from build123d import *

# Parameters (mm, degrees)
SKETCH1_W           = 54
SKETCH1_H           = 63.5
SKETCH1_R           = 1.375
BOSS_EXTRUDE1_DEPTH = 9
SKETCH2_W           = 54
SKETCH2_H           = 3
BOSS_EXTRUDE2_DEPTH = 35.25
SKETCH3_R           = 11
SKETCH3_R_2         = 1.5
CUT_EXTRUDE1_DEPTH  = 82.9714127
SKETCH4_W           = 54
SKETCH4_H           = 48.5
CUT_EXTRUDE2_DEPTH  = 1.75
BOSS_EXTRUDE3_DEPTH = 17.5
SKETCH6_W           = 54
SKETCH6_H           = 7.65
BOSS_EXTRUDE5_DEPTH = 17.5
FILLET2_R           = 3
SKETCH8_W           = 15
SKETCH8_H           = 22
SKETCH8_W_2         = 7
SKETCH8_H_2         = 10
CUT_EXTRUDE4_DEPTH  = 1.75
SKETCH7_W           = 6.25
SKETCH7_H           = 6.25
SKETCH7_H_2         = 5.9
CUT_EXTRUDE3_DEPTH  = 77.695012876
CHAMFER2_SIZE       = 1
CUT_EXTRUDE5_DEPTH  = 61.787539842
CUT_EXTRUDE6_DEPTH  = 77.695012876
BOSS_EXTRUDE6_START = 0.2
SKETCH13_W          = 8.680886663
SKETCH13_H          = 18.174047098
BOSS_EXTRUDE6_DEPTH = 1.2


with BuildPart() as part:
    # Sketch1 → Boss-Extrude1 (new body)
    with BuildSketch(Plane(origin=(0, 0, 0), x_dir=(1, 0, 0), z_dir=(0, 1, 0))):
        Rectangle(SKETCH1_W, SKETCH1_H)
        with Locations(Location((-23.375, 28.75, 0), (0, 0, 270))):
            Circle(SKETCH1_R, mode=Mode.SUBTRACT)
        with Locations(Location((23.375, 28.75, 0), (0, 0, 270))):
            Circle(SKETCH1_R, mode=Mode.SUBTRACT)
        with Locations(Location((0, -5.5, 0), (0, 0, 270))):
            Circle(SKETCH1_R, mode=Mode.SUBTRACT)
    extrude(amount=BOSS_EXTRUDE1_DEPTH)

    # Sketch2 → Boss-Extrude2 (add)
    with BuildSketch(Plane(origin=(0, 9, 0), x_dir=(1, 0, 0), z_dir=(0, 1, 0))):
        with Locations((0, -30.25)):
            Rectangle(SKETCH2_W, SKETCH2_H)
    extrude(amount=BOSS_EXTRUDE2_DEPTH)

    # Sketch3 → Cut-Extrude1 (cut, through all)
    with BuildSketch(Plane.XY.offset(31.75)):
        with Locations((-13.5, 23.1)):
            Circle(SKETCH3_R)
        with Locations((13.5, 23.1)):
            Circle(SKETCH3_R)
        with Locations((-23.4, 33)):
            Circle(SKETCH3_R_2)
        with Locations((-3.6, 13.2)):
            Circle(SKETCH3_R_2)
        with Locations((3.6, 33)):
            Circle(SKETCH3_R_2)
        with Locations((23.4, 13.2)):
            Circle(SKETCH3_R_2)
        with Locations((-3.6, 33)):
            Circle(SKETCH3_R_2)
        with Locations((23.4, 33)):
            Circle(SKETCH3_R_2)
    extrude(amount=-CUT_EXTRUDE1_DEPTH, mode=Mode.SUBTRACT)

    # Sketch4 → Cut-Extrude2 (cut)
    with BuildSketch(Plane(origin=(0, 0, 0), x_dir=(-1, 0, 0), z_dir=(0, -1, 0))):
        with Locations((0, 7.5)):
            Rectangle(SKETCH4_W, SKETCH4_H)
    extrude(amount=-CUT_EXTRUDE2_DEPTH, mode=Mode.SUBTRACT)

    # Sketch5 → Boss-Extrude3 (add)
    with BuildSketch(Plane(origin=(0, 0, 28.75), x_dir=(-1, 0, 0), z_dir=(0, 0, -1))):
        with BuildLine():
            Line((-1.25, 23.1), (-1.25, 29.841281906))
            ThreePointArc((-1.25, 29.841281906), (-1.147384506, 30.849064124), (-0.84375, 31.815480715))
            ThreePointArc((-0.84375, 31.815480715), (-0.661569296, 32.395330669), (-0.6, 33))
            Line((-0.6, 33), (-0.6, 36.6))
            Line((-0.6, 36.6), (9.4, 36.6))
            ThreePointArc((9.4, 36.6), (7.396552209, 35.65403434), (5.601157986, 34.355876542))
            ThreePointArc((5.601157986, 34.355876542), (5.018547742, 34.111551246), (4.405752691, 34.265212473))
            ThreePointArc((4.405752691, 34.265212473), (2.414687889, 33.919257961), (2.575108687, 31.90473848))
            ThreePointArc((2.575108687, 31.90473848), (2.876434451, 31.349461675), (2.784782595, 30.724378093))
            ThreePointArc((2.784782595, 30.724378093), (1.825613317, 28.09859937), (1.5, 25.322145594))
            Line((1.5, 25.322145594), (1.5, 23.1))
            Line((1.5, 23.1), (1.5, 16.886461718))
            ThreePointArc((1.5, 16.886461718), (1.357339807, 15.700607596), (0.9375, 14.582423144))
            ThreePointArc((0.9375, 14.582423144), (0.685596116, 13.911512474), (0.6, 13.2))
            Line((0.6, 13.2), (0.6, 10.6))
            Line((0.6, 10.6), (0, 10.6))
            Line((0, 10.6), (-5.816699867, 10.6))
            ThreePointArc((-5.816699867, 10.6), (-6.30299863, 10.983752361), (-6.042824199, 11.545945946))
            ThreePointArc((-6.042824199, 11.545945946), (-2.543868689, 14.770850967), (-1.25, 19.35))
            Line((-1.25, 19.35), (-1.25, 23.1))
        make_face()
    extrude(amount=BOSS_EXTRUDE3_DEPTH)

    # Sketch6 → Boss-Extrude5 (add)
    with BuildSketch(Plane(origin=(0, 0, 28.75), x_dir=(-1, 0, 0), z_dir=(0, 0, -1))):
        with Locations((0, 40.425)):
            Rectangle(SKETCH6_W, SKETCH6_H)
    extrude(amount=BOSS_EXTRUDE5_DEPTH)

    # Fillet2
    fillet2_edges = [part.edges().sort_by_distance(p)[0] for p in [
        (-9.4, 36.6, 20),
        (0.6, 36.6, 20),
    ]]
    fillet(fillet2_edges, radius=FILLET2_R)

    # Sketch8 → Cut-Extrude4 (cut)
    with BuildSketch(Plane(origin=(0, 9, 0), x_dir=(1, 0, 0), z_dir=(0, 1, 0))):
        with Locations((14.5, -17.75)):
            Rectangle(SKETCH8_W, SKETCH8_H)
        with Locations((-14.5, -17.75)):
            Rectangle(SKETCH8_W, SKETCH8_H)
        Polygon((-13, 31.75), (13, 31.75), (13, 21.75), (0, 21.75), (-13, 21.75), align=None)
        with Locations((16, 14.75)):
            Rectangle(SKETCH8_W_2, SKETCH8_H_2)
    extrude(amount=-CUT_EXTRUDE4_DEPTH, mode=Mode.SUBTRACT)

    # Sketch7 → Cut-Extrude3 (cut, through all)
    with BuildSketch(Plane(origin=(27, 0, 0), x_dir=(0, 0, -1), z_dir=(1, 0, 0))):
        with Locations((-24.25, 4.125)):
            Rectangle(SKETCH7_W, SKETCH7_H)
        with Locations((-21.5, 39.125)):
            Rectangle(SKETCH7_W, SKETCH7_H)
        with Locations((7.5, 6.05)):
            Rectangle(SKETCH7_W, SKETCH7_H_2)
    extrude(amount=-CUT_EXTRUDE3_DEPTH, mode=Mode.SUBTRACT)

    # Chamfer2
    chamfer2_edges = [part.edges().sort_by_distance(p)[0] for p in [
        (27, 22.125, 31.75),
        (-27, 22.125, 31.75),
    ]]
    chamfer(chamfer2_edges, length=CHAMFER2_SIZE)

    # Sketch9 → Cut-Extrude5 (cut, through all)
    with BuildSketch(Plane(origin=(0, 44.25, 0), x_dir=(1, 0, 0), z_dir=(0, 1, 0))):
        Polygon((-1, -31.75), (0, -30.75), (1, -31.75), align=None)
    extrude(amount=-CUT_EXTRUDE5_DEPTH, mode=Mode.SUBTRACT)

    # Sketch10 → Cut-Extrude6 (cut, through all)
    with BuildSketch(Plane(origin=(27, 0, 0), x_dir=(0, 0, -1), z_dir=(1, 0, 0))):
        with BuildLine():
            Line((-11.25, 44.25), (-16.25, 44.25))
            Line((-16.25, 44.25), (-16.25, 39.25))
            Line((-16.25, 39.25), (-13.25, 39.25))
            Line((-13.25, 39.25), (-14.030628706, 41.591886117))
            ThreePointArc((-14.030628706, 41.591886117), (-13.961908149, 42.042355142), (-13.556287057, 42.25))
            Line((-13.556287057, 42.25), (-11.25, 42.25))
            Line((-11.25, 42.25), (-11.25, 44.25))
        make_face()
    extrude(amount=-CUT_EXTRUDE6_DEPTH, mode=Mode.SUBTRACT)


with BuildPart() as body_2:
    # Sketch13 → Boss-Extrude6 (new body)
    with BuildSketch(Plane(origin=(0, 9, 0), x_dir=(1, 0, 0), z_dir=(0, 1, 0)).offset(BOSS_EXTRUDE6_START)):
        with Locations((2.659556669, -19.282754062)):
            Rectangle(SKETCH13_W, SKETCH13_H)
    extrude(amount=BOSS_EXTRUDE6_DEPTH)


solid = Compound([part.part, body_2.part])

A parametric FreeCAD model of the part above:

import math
import FreeCAD as App
import Part
import Sketcher
from FreeCAD import Vector


def edges_at(feature, points):
    """Names of the edges that pass closest to the given points."""
    edges = feature.Shape.Edges
    near = lambda p: min(range(len(edges)), key=lambda i: edges[i].distToShape(Part.Vertex(*p))[0])
    return sorted({f"Edge{near(p) + 1}" for p in points})

doc = App.newDocument("Part")
body = doc.addObject("PartDesign::Body", "Body")

sketch1 = doc.addObject("Sketcher::SketchObject", "Sketch")
body.addObject(sketch1)
sketch1.AttachmentSupport = (doc.XZ_Plane, [""])
sketch1.MapMode = "FlatFace"
sketch1.addGeometry(Part.LineSegment(Vector(-27, -31.75, 0), Vector(-27, 31.75, 0)), False)
sketch1.addGeometry(Part.LineSegment(Vector(-27, 31.75, 0), Vector(27, 31.75, 0)), False)
sketch1.addGeometry(Part.LineSegment(Vector(27, 31.75, 0), Vector(27, -31.75, 0)), False)
sketch1.addGeometry(Part.LineSegment(Vector(27, -31.75, 0), Vector(-27, -31.75, 0)), False)
sketch1.addGeometry(Part.Circle(Vector(0, 5.5, 0), Vector(0, 0, 1), 1.375), False)
sketch1.addGeometry(Part.Circle(Vector(-23.375, -28.75, 0), Vector(0, 0, 1), 1.375), False)
sketch1.addGeometry(Part.Circle(Vector(23.375, -28.75, 0), Vector(0, 0, 1), 1.375), False)
sketch1.addConstraint(Sketcher.Constraint("Coincident", 0, 2, 1, 1))
sketch1.addConstraint(Sketcher.Constraint("Coincident", 1, 2, 2, 1))
sketch1.addConstraint(Sketcher.Constraint("Coincident", 2, 2, 3, 1))
sketch1.addConstraint(Sketcher.Constraint("Coincident", 3, 2, 0, 1))
sketch1.addConstraint(Sketcher.Constraint("Vertical", 0))
sketch1.addConstraint(Sketcher.Constraint("Horizontal", 1))
sketch1.addConstraint(Sketcher.Constraint("Vertical", 2))
sketch1.addConstraint(Sketcher.Constraint("Horizontal", 3))
sketch1.addConstraint(Sketcher.Constraint("Equal", 4, 5))
sketch1.addConstraint(Sketcher.Constraint("Equal", 5, 6))
sketch1.addConstraint(Sketcher.Constraint("Symmetric", 0, 2, 2, 2, -1, 1))
sketch1.addConstraint(Sketcher.Constraint("Symmetric", 5, 3, 6, 3, -2))
sketch1.addConstraint(Sketcher.Constraint("PointOnObject", 4, 3, -2))
sketch1.addConstraint(Sketcher.Constraint("Diameter", 4, 2.75))
sketch1.addConstraint(Sketcher.Constraint("DistanceX", 1, 1, 1, 2, 54.0))
sketch1.addConstraint(Sketcher.Constraint("DistanceY", 0, 1, 0, 2, 63.5))
sketch1.addConstraint(Sketcher.Constraint("DistanceY", 2, 2, 6, 3, 3.0))
sketch1.addConstraint(Sketcher.Constraint("DistanceY", -1, 1, 4, 3, 5.5))
sketch1.addConstraint(Sketcher.Constraint("DistanceX", 5, 3, 6, 3, 46.75))
pad1 = doc.addObject("PartDesign::Pad", "Pad")
body.addObject(pad1)
pad1.Profile = sketch1
pad1.Length = 9
pad1.Reversed = True

sketch2 = doc.addObject("Sketcher::SketchObject", "Sketch001")
body.addObject(sketch2)
sketch2.AttachmentSupport = (doc.XZ_Plane, [""])
sketch2.MapMode = "FlatFace"
sketch2.AttachmentOffset = App.Placement(Vector(0, 0, -9), App.Rotation())
sketch2.addGeometry(Part.LineSegment(Vector(-27, 28.75, 0), Vector(-27, 31.75, 0)), False)
sketch2.addGeometry(Part.LineSegment(Vector(-27, 31.75, 0), Vector(27, 31.75, 0)), False)
sketch2.addGeometry(Part.LineSegment(Vector(27, 31.75, 0), Vector(27, 28.75, 0)), False)
sketch2.addGeometry(Part.LineSegment(Vector(27, 28.75, 0), Vector(-27, 28.75, 0)), False)
sketch2.addConstraint(Sketcher.Constraint("Coincident", 0, 2, 1, 1))
sketch2.addConstraint(Sketcher.Constraint("Coincident", 1, 2, 2, 1))
sketch2.addConstraint(Sketcher.Constraint("Coincident", 2, 2, 3, 1))
sketch2.addConstraint(Sketcher.Constraint("Coincident", 3, 2, 0, 1))
sketch2.addConstraint(Sketcher.Constraint("Vertical", 0))
sketch2.addConstraint(Sketcher.Constraint("Horizontal", 1))
sketch2.addConstraint(Sketcher.Constraint("Vertical", 2))
sketch2.addConstraint(Sketcher.Constraint("Horizontal", 3))
sketch2.addConstraint(Sketcher.Constraint("DistanceX", 1, 1, 1, 2, 54.0))
sketch2.addConstraint(Sketcher.Constraint("DistanceY", 0, 1, 0, 2, 3.0))
sketch2.addConstraint(Sketcher.Constraint("DistanceX", 0, 2, -1, 1, 27.0))
sketch2.addConstraint(Sketcher.Constraint("DistanceY", -1, 1, 0, 2, 31.75))
pad2 = doc.addObject("PartDesign::Pad", "Pad001")
body.addObject(pad2)
pad2.Profile = sketch2
pad2.Length = 35.25
pad2.Reversed = True

sketch3 = doc.addObject("Sketcher::SketchObject", "Sketch002")
body.addObject(sketch3)
sketch3.AttachmentSupport = (doc.XY_Plane, [""])
sketch3.MapMode = "FlatFace"
sketch3.AttachmentOffset = App.Placement(Vector(0, 0, 31.75), App.Rotation())
sketch3.addGeometry(Part.Circle(Vector(-13.5, 23.1, 0), Vector(0, 0, 1), 11), False)
sketch3.addGeometry(Part.Circle(Vector(13.5, 23.1, 0), Vector(0, 0, 1), 11), False)
sketch3.addGeometry(Part.Circle(Vector(-23.4, 33, 0), Vector(0, 0, 1), 1.5), False)
sketch3.addGeometry(Part.Circle(Vector(-3.6, 13.2, 0), Vector(0, 0, 1), 1.5), False)
sketch3.addGeometry(Part.Circle(Vector(3.6, 33, 0), Vector(0, 0, 1), 1.5), False)
sketch3.addGeometry(Part.Circle(Vector(23.4, 13.2, 0), Vector(0, 0, 1), 1.5), False)
sketch3.addGeometry(Part.Circle(Vector(-3.6, 33, 0), Vector(0, 0, 1), 1.5), False)
sketch3.addGeometry(Part.Circle(Vector(23.4, 33, 0), Vector(0, 0, 1), 1.5), False)
sketch3.addConstraint(Sketcher.Constraint("Equal", 0, 1))
sketch3.addConstraint(Sketcher.Constraint("Equal", 2, 3))
sketch3.addConstraint(Sketcher.Constraint("Equal", 3, 4))
sketch3.addConstraint(Sketcher.Constraint("Equal", 4, 5))
sketch3.addConstraint(Sketcher.Constraint("Equal", 5, 6))
sketch3.addConstraint(Sketcher.Constraint("Equal", 6, 7))
sketch3.addConstraint(Sketcher.Constraint("Symmetric", 0, 3, 1, 3, -2))
sketch3.addConstraint(Sketcher.Constraint("Symmetric", 4, 3, 6, 3, -2))
sketch3.addConstraint(Sketcher.Constraint("Symmetric", 2, 3, 7, 3, -2))
sketch3.addConstraint(Sketcher.Constraint("Horizontal", 2, 3, 4, 3))
sketch3.addConstraint(Sketcher.Constraint("Horizontal", 3, 3, 5, 3))
sketch3.addConstraint(Sketcher.Constraint("Vertical", 3, 3, 6, 3))
sketch3.addConstraint(Sketcher.Constraint("Vertical", 5, 3, 7, 3))
sketch3.addConstraint(Sketcher.Constraint("Diameter", 0, 22.0))
sketch3.addConstraint(Sketcher.Constraint("Diameter", 2, 3.0))
sketch3.addConstraint(Sketcher.Constraint("DistanceY", -1, 1, 2, 3, 33.0))
sketch3.addConstraint(Sketcher.Constraint("DistanceX", 0, 3, 1, 3, 27.0))
sketch3.addConstraint(Sketcher.Constraint("DistanceX", 2, 3, 4, 3, 27.0))
sketch3.addConstraint(Sketcher.Constraint("DistanceY", -1, 1, 0, 3, 23.1))
sketch3.addConstraint(Sketcher.Constraint("DistanceX", 2, 3, -1, 1, 23.4))
sketch3.addConstraint(Sketcher.Constraint("DistanceY", -1, 1, 3, 3, 13.2))
pocket1 = doc.addObject("PartDesign::Pocket", "Pocket")
body.addObject(pocket1)
pocket1.Profile = sketch3
pocket1.Type = "ThroughAll"

sketch4 = doc.addObject("Sketcher::SketchObject", "Sketch003")
body.addObject(sketch4)
sketch4.AttachmentSupport = (doc.XZ_Plane, [""])
sketch4.MapMode = "FlatFace"
sketch4.addGeometry(Part.LineSegment(Vector(27, -31.75, 0), Vector(27, 16.75, 0)), False)
sketch4.addGeometry(Part.LineSegment(Vector(27, 16.75, 0), Vector(-27, 16.75, 0)), False)
sketch4.addGeometry(Part.LineSegment(Vector(-27, 16.75, 0), Vector(-27, -31.75, 0)), False)
sketch4.addGeometry(Part.LineSegment(Vector(-27, -31.75, 0), Vector(27, -31.75, 0)), False)
sketch4.addConstraint(Sketcher.Constraint("Coincident", 0, 2, 1, 1))
sketch4.addConstraint(Sketcher.Constraint("Coincident", 1, 2, 2, 1))
sketch4.addConstraint(Sketcher.Constraint("Coincident", 2, 2, 3, 1))
sketch4.addConstraint(Sketcher.Constraint("Coincident", 3, 2, 0, 1))
sketch4.addConstraint(Sketcher.Constraint("Vertical", 0))
sketch4.addConstraint(Sketcher.Constraint("Horizontal", 1))
sketch4.addConstraint(Sketcher.Constraint("Vertical", 2))
sketch4.addConstraint(Sketcher.Constraint("Horizontal", 3))
sketch4.addConstraint(Sketcher.Constraint("DistanceX", 1, 2, 1, 1, 54.0))
sketch4.addConstraint(Sketcher.Constraint("DistanceY", 0, 1, 0, 2, 48.5))
sketch4.addConstraint(Sketcher.Constraint("DistanceX", -1, 1, 0, 2, 27.0))
sketch4.addConstraint(Sketcher.Constraint("DistanceY", -1, 1, 0, 2, 16.75))
pocket2 = doc.addObject("PartDesign::Pocket", "Pocket001")
body.addObject(pocket2)
pocket2.Profile = sketch4
pocket2.Length = 1.75

sketch5 = doc.addObject("Sketcher::SketchObject", "Sketch004")
body.addObject(sketch5)
sketch5.AttachmentSupport = (doc.XY_Plane, [""])
sketch5.MapMode = "FlatFace"
sketch5.AttachmentOffset = App.Placement(Vector(0, 0, 28.75), App.Rotation())
sketch5.addGeometry(Part.ArcOfCircle(Part.Circle(Vector(-3.75, 29.841282, 0), Vector(0, 0, 1), 5), math.radians(0), math.radians(23.255981)), False)
sketch5.addGeometry(Part.LineSegment(Vector(1.25, 29.841282, 0), Vector(1.25, 19.35, 0)), False)
sketch5.addGeometry(Part.ArcOfCircle(Part.Circle(Vector(10, 19.35, 0), Vector(0, 0, 1), 8.75), math.radians(-180), math.radians(-116.888048)), False)
sketch5.addGeometry(Part.ArcOfCircle(Part.Circle(Vector(5.8167, 11.1, 0), Vector(0, 0, 1), 0.5), math.radians(-90), math.radians(63.111952)), False)
sketch5.addGeometry(Part.LineSegment(Vector(5.8167, 10.6, 0), Vector(-0.6, 10.6, 0)), False)
sketch5.addGeometry(Part.LineSegment(Vector(-0.6, 10.6, 0), Vector(-0.6, 13.2, 0)), False)
sketch5.addGeometry(Part.ArcOfCircle(Part.Circle(Vector(-3.6, 13.2, 0), Vector(0, 0, 1), 3), math.radians(0), math.radians(27.43924)), False)
sketch5.addGeometry(Part.ArcOfCircle(Part.Circle(Vector(3.5, 16.886462, 0), Vector(0, 0, 1), 5), math.radians(-180), math.radians(-152.56076)), False)
sketch5.addGeometry(Part.LineSegment(Vector(-1.5, 16.886462, 0), Vector(-1.5, 25.322146, 0)), False)
sketch5.addGeometry(Part.ArcOfCircle(Part.Circle(Vector(-13.5, 25.322146, 0), Vector(0, 0, 1), 12), math.radians(0), math.radians(26.755621)), False)
sketch5.addGeometry(Part.ArcOfCircle(Part.Circle(Vector(-1.891848, 31.174564, 0), Vector(0, 0, 1), 1), math.radians(133.098988), math.radians(206.755621)), False)
sketch5.addGeometry(Part.ArcOfCircle(Part.Circle(Vector(-3.6, 33, 0), Vector(0, 0, 1), 1.5), math.radians(-46.901012), math.radians(122.491091)), False)
sketch5.addGeometry(Part.ArcOfCircle(Part.Circle(Vector(-4.942921, 35.108687, 0), Vector(0, 0, 1), 1), math.radians(-131.165542), math.radians(-57.508909)), False)
sketch5.addGeometry(Part.ArcOfCircle(Part.Circle(Vector(-13.5, 25.322146, 0), Vector(0, 0, 1), 12), math.radians(48.834458), math.radians(70.021551)), False)
sketch5.addGeometry(Part.LineSegment(Vector(-9.4, 36.6, 0), Vector(0.6, 36.6, 0)), False)
sketch5.addGeometry(Part.LineSegment(Vector(0.6, 36.6, 0), Vector(0.6, 33, 0)), False)
sketch5.addGeometry(Part.ArcOfCircle(Part.Circle(Vector(3.6, 33, 0), Vector(0, 0, 1), 3), math.radians(180), math.radians(203.255981)), False)
sketch5.addConstraint(Sketcher.Constraint("Tangent", 0, 1, 1, 1))
sketch5.addConstraint(Sketcher.Constraint("Tangent", 1, 2, 2, 1))
sketch5.addConstraint(Sketcher.Constraint("Tangent", 2, 2, 3, 2))
sketch5.addConstraint(Sketcher.Constraint("Tangent", 3, 1, 4, 1))
sketch5.addConstraint(Sketcher.Constraint("Coincident", 4, 2, 5, 1))
sketch5.addConstraint(Sketcher.Constraint("Tangent", 5, 2, 6, 1))
sketch5.addConstraint(Sketcher.Constraint("Tangent", 6, 2, 7, 2))
sketch5.addConstraint(Sketcher.Constraint("Tangent", 7, 1, 8, 1))
sketch5.addConstraint(Sketcher.Constraint("Tangent", 8, 2, 9, 1))
sketch5.addConstraint(Sketcher.Constraint("Tangent", 9, 2, 10, 2))
sketch5.addConstraint(Sketcher.Constraint("Tangent", 10, 1, 11, 1))
sketch5.addConstraint(Sketcher.Constraint("Tangent", 11, 2, 12, 2))
sketch5.addConstraint(Sketcher.Constraint("Tangent", 12, 1, 13, 1))
sketch5.addConstraint(Sketcher.Constraint("Coincident", 13, 2, 14, 1))
sketch5.addConstraint(Sketcher.Constraint("Coincident", 14, 2, 15, 1))
sketch5.addConstraint(Sketcher.Constraint("Tangent", 15, 2, 16, 1))
sketch5.addConstraint(Sketcher.Constraint("Tangent", 16, 2, 0, 2))
sketch5.addConstraint(Sketcher.Constraint("Vertical", 1))
sketch5.addConstraint(Sketcher.Constraint("Horizontal", 4))
sketch5.addConstraint(Sketcher.Constraint("Vertical", 5))
sketch5.addConstraint(Sketcher.Constraint("Vertical", 8))
sketch5.addConstraint(Sketcher.Constraint("Horizontal", 14))
sketch5.addConstraint(Sketcher.Constraint("Vertical", 15))
sketch5.addConstraint(Sketcher.Constraint("Coincident", 13, 3, 9, 3))
sketch5.addConstraint(Sketcher.Constraint("Equal", 0, 7))
sketch5.addConstraint(Sketcher.Constraint("Equal", 10, 12))
sketch5.addConstraint(Sketcher.Constraint("Equal", 9, 13))
sketch5.addConstraint(Sketcher.Constraint("Equal", 6, 16))
sketch5.addConstraint(Sketcher.Constraint("Symmetric", 11, 3, 16, 3, -2))
sketch5.addConstraint(Sketcher.Constraint("Vertical", 6, 3, 11, 3))
sketch5.addConstraint(Sketcher.Constraint("Radius", 0, 5.0))
sketch5.addConstraint(Sketcher.Constraint("Radius", 6, 3.0))
sketch5.addConstraint(Sketcher.Constraint("Radius", 9, 12.0))
sketch5.addConstraint(Sketcher.Constraint("Radius", 10, 1.0))
sketch5.addConstraint(Sketcher.Constraint("Radius", 3, 0.5))
sketch5.addConstraint(Sketcher.Constraint("Radius", 11, 1.5))
sketch5.addConstraint(Sketcher.Constraint("DistanceX", 14, 1, 14, 2, 10.0))
sketch5.addConstraint(Sketcher.Constraint("Radius", 2, 8.75))
sketch5.addConstraint(Sketcher.Constraint("DistanceY", 5, 1, 5, 2, 2.6))
sketch5.addConstraint(Sketcher.Constraint("DistanceY", 15, 2, 15, 1, 3.6))
sketch5.addConstraint(Sketcher.Constraint("DistanceX", -1, 1, 2, 3, 10.0))
sketch5.addConstraint(Sketcher.Constraint("DistanceY", -1, 1, 11, 3, 33.0))
sketch5.addConstraint(Sketcher.Constraint("DistanceY", -1, 1, 3, 3, 11.1))
sketch5.addConstraint(Sketcher.Constraint("DistanceX", 6, 3, -1, 1, 3.6))
sketch5.addConstraint(Sketcher.Constraint("DistanceX", -1, 1, 7, 3, 3.5))
sketch5.addConstraint(Sketcher.Constraint("DistanceY", -1, 1, 2, 3, 19.35))
pad3 = doc.addObject("PartDesign::Pad", "Pad002")
body.addObject(pad3)
pad3.Profile = sketch5
pad3.Length = 17.5
pad3.Reversed = True

sketch6 = doc.addObject("Sketcher::SketchObject", "Sketch005")
body.addObject(sketch6)
sketch6.AttachmentSupport = (doc.XY_Plane, [""])
sketch6.MapMode = "FlatFace"
sketch6.AttachmentOffset = App.Placement(Vector(0, 0, 28.75), App.Rotation())
sketch6.addGeometry(Part.LineSegment(Vector(27, 44.25, 0), Vector(27, 36.6, 0)), False)
sketch6.addGeometry(Part.LineSegment(Vector(27, 36.6, 0), Vector(-27, 36.6, 0)), False)
sketch6.addGeometry(Part.LineSegment(Vector(-27, 36.6, 0), Vector(-27, 44.25, 0)), False)
sketch6.addGeometry(Part.LineSegment(Vector(-27, 44.25, 0), Vector(27, 44.25, 0)), False)
sketch6.addConstraint(Sketcher.Constraint("Coincident", 0, 2, 1, 1))
sketch6.addConstraint(Sketcher.Constraint("Coincident", 1, 2, 2, 1))
sketch6.addConstraint(Sketcher.Constraint("Coincident", 2, 2, 3, 1))
sketch6.addConstraint(Sketcher.Constraint("Coincident", 3, 2, 0, 1))
sketch6.addConstraint(Sketcher.Constraint("Vertical", 0))
sketch6.addConstraint(Sketcher.Constraint("Horizontal", 1))
sketch6.addConstraint(Sketcher.Constraint("Vertical", 2))
sketch6.addConstraint(Sketcher.Constraint("Horizontal", 3))
sketch6.addConstraint(Sketcher.Constraint("DistanceX", 1, 2, 1, 1, 54.0))
sketch6.addConstraint(Sketcher.Constraint("DistanceX", -1, 1, 0, 2, 27.0))
sketch6.addConstraint(Sketcher.Constraint("DistanceY", 0, 2, 0, 1, 7.65))
sketch6.addConstraint(Sketcher.Constraint("DistanceY", -1, 1, 0, 2, 36.6))
pad4 = doc.addObject("PartDesign::Pad", "Pad003")
body.addObject(pad4)
pad4.Profile = sketch6
pad4.Length = 17.5
pad4.Reversed = True
doc.recompute()

fillet = doc.addObject("PartDesign::Fillet", "Fillet")
body.addObject(fillet)
fillet.Base = (pad4, edges_at(pad4, [(-9.4, 36.6, 20), (0.6, 36.6, 20)]))
fillet.Radius = 3

sketch7 = doc.addObject("Sketcher::SketchObject", "Sketch006")
body.addObject(sketch7)
sketch7.AttachmentSupport = (doc.XZ_Plane, [""])
sketch7.MapMode = "FlatFace"
sketch7.AttachmentOffset = App.Placement(Vector(0, 0, -9), App.Rotation())
sketch7.addGeometry(Part.LineSegment(Vector(7, 6.75, 0), Vector(7, 28.75, 0)), False)
sketch7.addGeometry(Part.LineSegment(Vector(7, 28.75, 0), Vector(22, 28.75, 0)), False)
sketch7.addGeometry(Part.LineSegment(Vector(22, 28.75, 0), Vector(22, 6.75, 0)), False)
sketch7.addGeometry(Part.LineSegment(Vector(22, 6.75, 0), Vector(7, 6.75, 0)), False)
sketch7.addGeometry(Part.LineSegment(Vector(-22, 6.75, 0), Vector(-22, 28.75, 0)), False)
sketch7.addGeometry(Part.LineSegment(Vector(-22, 28.75, 0), Vector(-7, 28.75, 0)), False)
sketch7.addGeometry(Part.LineSegment(Vector(-7, 28.75, 0), Vector(-7, 6.75, 0)), False)
sketch7.addGeometry(Part.LineSegment(Vector(-7, 6.75, 0), Vector(-22, 6.75, 0)), False)
sketch7.addGeometry(Part.LineSegment(Vector(13, -31.75, 0), Vector(-13, -31.75, 0)), False)
sketch7.addGeometry(Part.LineSegment(Vector(-13, -31.75, 0), Vector(-13, -21.75, 0)), False)
sketch7.addGeometry(Part.LineSegment(Vector(-13, -21.75, 0), Vector(13, -21.75, 0)), False)
sketch7.addGeometry(Part.LineSegment(Vector(13, -21.75, 0), Vector(13, -31.75, 0)), False)
sketch7.addGeometry(Part.LineSegment(Vector(12.5, -19.75, 0), Vector(12.5, -9.75, 0)), False)
sketch7.addGeometry(Part.LineSegment(Vector(12.5, -9.75, 0), Vector(19.5, -9.75, 0)), False)
sketch7.addGeometry(Part.LineSegment(Vector(19.5, -9.75, 0), Vector(19.5, -19.75, 0)), False)
sketch7.addGeometry(Part.LineSegment(Vector(19.5, -19.75, 0), Vector(12.5, -19.75, 0)), False)
sketch7.addConstraint(Sketcher.Constraint("Coincident", 0, 2, 1, 1))
sketch7.addConstraint(Sketcher.Constraint("Coincident", 1, 2, 2, 1))
sketch7.addConstraint(Sketcher.Constraint("Coincident", 2, 2, 3, 1))
sketch7.addConstraint(Sketcher.Constraint("Coincident", 3, 2, 0, 1))
sketch7.addConstraint(Sketcher.Constraint("Coincident", 4, 2, 5, 1))
sketch7.addConstraint(Sketcher.Constraint("Coincident", 5, 2, 6, 1))
sketch7.addConstraint(Sketcher.Constraint("Coincident", 6, 2, 7, 1))
sketch7.addConstraint(Sketcher.Constraint("Coincident", 7, 2, 4, 1))
sketch7.addConstraint(Sketcher.Constraint("Coincident", 8, 2, 9, 1))
sketch7.addConstraint(Sketcher.Constraint("Coincident", 9, 2, 10, 1))
sketch7.addConstraint(Sketcher.Constraint("Coincident", 10, 2, 11, 1))
sketch7.addConstraint(Sketcher.Constraint("Coincident", 11, 2, 8, 1))
sketch7.addConstraint(Sketcher.Constraint("Coincident", 12, 2, 13, 1))
sketch7.addConstraint(Sketcher.Constraint("Coincident", 13, 2, 14, 1))
sketch7.addConstraint(Sketcher.Constraint("Coincident", 14, 2, 15, 1))
sketch7.addConstraint(Sketcher.Constraint("Coincident", 15, 2, 12, 1))
sketch7.addConstraint(Sketcher.Constraint("Vertical", 0))
sketch7.addConstraint(Sketcher.Constraint("Horizontal", 1))
sketch7.addConstraint(Sketcher.Constraint("Vertical", 2))
sketch7.addConstraint(Sketcher.Constraint("Horizontal", 3))
sketch7.addConstraint(Sketcher.Constraint("Vertical", 4))
sketch7.addConstraint(Sketcher.Constraint("Horizontal", 5))
sketch7.addConstraint(Sketcher.Constraint("Vertical", 6))
sketch7.addConstraint(Sketcher.Constraint("Horizontal", 7))
sketch7.addConstraint(Sketcher.Constraint("Horizontal", 8))
sketch7.addConstraint(Sketcher.Constraint("Vertical", 9))
sketch7.addConstraint(Sketcher.Constraint("Horizontal", 10))
sketch7.addConstraint(Sketcher.Constraint("Vertical", 11))
sketch7.addConstraint(Sketcher.Constraint("Vertical", 12))
sketch7.addConstraint(Sketcher.Constraint("Horizontal", 13))
sketch7.addConstraint(Sketcher.Constraint("Vertical", 14))
sketch7.addConstraint(Sketcher.Constraint("Horizontal", 15))
sketch7.addConstraint(Sketcher.Constraint("Symmetric", 1, 2, 4, 2, -2))
sketch7.addConstraint(Sketcher.Constraint("Symmetric", 3, 2, 6, 2, -2))
sketch7.addConstraint(Sketcher.Constraint("Equal", 11, 12))
sketch7.addConstraint(Sketcher.Constraint("DistanceX", 1, 1, 1, 2, 15.0))
sketch7.addConstraint(Sketcher.Constraint("DistanceX", 8, 2, 8, 1, 26.0))
sketch7.addConstraint(Sketcher.Constraint("DistanceX", 13, 1, 13, 2, 7.0))
sketch7.addConstraint(Sketcher.Constraint("DistanceY", 0, 1, 0, 2, 22.0))
sketch7.addConstraint(Sketcher.Constraint("DistanceY", 9, 1, 9, 2, 10.0))
sketch7.addConstraint(Sketcher.Constraint("DistanceX", -1, 1, 0, 2, 7.0))
sketch7.addConstraint(Sketcher.Constraint("DistanceX", 8, 2, -1, 1, 13.0))
sketch7.addConstraint(Sketcher.Constraint("DistanceY", 10, 2, 12, 2, 12.0))
sketch7.addConstraint(Sketcher.Constraint("DistanceX", -1, 1, 12, 2, 12.5))
sketch7.addConstraint(Sketcher.Constraint("DistanceY", 8, 2, 6, 2, 38.5))
sketch7.addConstraint(Sketcher.Constraint("DistanceY", -1, 1, 0, 2, 28.75))
pocket3 = doc.addObject("PartDesign::Pocket", "Pocket002")
body.addObject(pocket3)
pocket3.Profile = sketch7
pocket3.Length = 1.75
pocket3.Reversed = True

sketch8 = doc.addObject("Sketcher::SketchObject", "Sketch007")
body.addObject(sketch8)
sketch8.AttachmentSupport = (doc.YZ_Plane, [""])
sketch8.MapMode = "FlatFace"
sketch8.AttachmentOffset = App.Placement(Vector(0, 0, 27), App.Rotation())
sketch8.addGeometry(Part.LineSegment(Vector(7.25, 27.375, 0), Vector(1, 27.375, 0)), False)
sketch8.addGeometry(Part.LineSegment(Vector(1, 27.375, 0), Vector(1, 21.125, 0)), False)
sketch8.addGeometry(Part.LineSegment(Vector(1, 21.125, 0), Vector(7.25, 21.125, 0)), False)
sketch8.addGeometry(Part.LineSegment(Vector(7.25, 21.125, 0), Vector(7.25, 27.375, 0)), False)
sketch8.addGeometry(Part.LineSegment(Vector(42.25, 24.625, 0), Vector(36, 24.625, 0)), False)
sketch8.addGeometry(Part.LineSegment(Vector(36, 24.625, 0), Vector(36, 18.375, 0)), False)
sketch8.addGeometry(Part.LineSegment(Vector(36, 18.375, 0), Vector(42.25, 18.375, 0)), False)
sketch8.addGeometry(Part.LineSegment(Vector(42.25, 18.375, 0), Vector(42.25, 24.625, 0)), False)
sketch8.addGeometry(Part.LineSegment(Vector(9, -4.375, 0), Vector(3.1, -4.375, 0)), False)
sketch8.addGeometry(Part.LineSegment(Vector(3.1, -4.375, 0), Vector(3.1, -10.625, 0)), False)
sketch8.addGeometry(Part.LineSegment(Vector(3.1, -10.625, 0), Vector(9, -10.625, 0)), False)
sketch8.addGeometry(Part.LineSegment(Vector(9, -10.625, 0), Vector(9, -4.375, 0)), False)
sketch8.addConstraint(Sketcher.Constraint("Coincident", 0, 2, 1, 1))
sketch8.addConstraint(Sketcher.Constraint("Coincident", 1, 2, 2, 1))
sketch8.addConstraint(Sketcher.Constraint("Coincident", 2, 2, 3, 1))
sketch8.addConstraint(Sketcher.Constraint("Coincident", 3, 2, 0, 1))
sketch8.addConstraint(Sketcher.Constraint("Coincident", 4, 2, 5, 1))
sketch8.addConstraint(Sketcher.Constraint("Coincident", 5, 2, 6, 1))
sketch8.addConstraint(Sketcher.Constraint("Coincident", 6, 2, 7, 1))
sketch8.addConstraint(Sketcher.Constraint("Coincident", 7, 2, 4, 1))
sketch8.addConstraint(Sketcher.Constraint("Coincident", 8, 2, 9, 1))
sketch8.addConstraint(Sketcher.Constraint("Coincident", 9, 2, 10, 1))
sketch8.addConstraint(Sketcher.Constraint("Coincident", 10, 2, 11, 1))
sketch8.addConstraint(Sketcher.Constraint("Coincident", 11, 2, 8, 1))
sketch8.addConstraint(Sketcher.Constraint("Horizontal", 0))
sketch8.addConstraint(Sketcher.Constraint("Vertical", 1))
sketch8.addConstraint(Sketcher.Constraint("Horizontal", 2))
sketch8.addConstraint(Sketcher.Constraint("Vertical", 3))
sketch8.addConstraint(Sketcher.Constraint("Horizontal", 4))
sketch8.addConstraint(Sketcher.Constraint("Vertical", 5))
sketch8.addConstraint(Sketcher.Constraint("Horizontal", 6))
sketch8.addConstraint(Sketcher.Constraint("Vertical", 7))
sketch8.addConstraint(Sketcher.Constraint("Horizontal", 8))
sketch8.addConstraint(Sketcher.Constraint("Vertical", 9))
sketch8.addConstraint(Sketcher.Constraint("Horizontal", 10))
sketch8.addConstraint(Sketcher.Constraint("Vertical", 11))
sketch8.addConstraint(Sketcher.Constraint("Equal", 2, 4))
sketch8.addConstraint(Sketcher.Constraint("Equal", 6, 1))
sketch8.addConstraint(Sketcher.Constraint("Equal", 3, 5))
sketch8.addConstraint(Sketcher.Constraint("Equal", 7, 9))
sketch8.addConstraint(Sketcher.Constraint("DistanceX", 8, 2, 8, 1, 5.9))
sketch8.addConstraint(Sketcher.Constraint("DistanceX", -1, 1, 0, 2, 1.0))
sketch8.addConstraint(Sketcher.Constraint("DistanceX", -1, 1, 4, 2, 36.0))
sketch8.addConstraint(Sketcher.Constraint("DistanceX", -1, 1, 10, 2, 9.0))
sketch8.addConstraint(Sketcher.Constraint("DistanceY", 5, 2, 3, 2, 9.0))
sketch8.addConstraint(Sketcher.Constraint("DistanceY", 9, 2, 0, 2, 38.0))
sketch8.addConstraint(Sketcher.Constraint("DistanceX", 0, 2, 0, 1, 6.25))
sketch8.addConstraint(Sketcher.Constraint("DistanceY", -1, 1, 0, 2, 27.375))
pocket4 = doc.addObject("PartDesign::Pocket", "Pocket003")
body.addObject(pocket4)
pocket4.Profile = sketch8
pocket4.Type = "ThroughAll"
doc.recompute()

chamfer = doc.addObject("PartDesign::Chamfer", "Chamfer")
body.addObject(chamfer)
chamfer.Base = (pocket4, edges_at(pocket4, [(27, 22.125, 31.75), (-27, 22.125, 31.75)]))
chamfer.Size = 1

sketch9 = doc.addObject("Sketcher::SketchObject", "Sketch008")
body.addObject(sketch9)
sketch9.AttachmentSupport = (doc.XZ_Plane, [""])
sketch9.MapMode = "FlatFace"
sketch9.AttachmentOffset = App.Placement(Vector(0, 0, -44.25), App.Rotation())
sketch9.addGeometry(Part.LineSegment(Vector(0, 30.75, 0), Vector(-1, 31.75, 0)), False)
sketch9.addGeometry(Part.LineSegment(Vector(-1, 31.75, 0), Vector(1, 31.75, 0)), False)
sketch9.addGeometry(Part.LineSegment(Vector(1, 31.75, 0), Vector(0, 30.75, 0)), False)
sketch9.addConstraint(Sketcher.Constraint("Coincident", 0, 2, 1, 1))
sketch9.addConstraint(Sketcher.Constraint("Coincident", 1, 2, 2, 1))
sketch9.addConstraint(Sketcher.Constraint("Coincident", 2, 2, 0, 1))
sketch9.addConstraint(Sketcher.Constraint("Horizontal", 1))
sketch9.addConstraint(Sketcher.Constraint("PointOnObject", 2, 2, -2))
sketch9.addConstraint(Sketcher.Constraint("Perpendicular", 0, 2))
sketch9.addConstraint(Sketcher.Constraint("Equal", 0, 2))
sketch9.addConstraint(Sketcher.Constraint("DistanceX", 1, 1, 1, 2, 2.0))
sketch9.addConstraint(Sketcher.Constraint("DistanceY", -1, 1, 0, 2, 31.75))
pocket5 = doc.addObject("PartDesign::Pocket", "Pocket004")
body.addObject(pocket5)
pocket5.Profile = sketch9
pocket5.Type = "ThroughAll"
pocket5.Reversed = True

sketch10 = doc.addObject("Sketcher::SketchObject", "Sketch009")
body.addObject(sketch10)
sketch10.AttachmentSupport = (doc.YZ_Plane, [""])
sketch10.MapMode = "FlatFace"
sketch10.AttachmentOffset = App.Placement(Vector(0, 0, 27), App.Rotation())
sketch10.addGeometry(Part.LineSegment(Vector(44.25, 11.25, 0), Vector(44.25, 16.25, 0)), False)
sketch10.addGeometry(Part.LineSegment(Vector(44.25, 16.25, 0), Vector(39.25, 16.25, 0)), False)
sketch10.addGeometry(Part.LineSegment(Vector(39.25, 16.25, 0), Vector(39.25, 13.25, 0)), False)
sketch10.addGeometry(Part.LineSegment(Vector(39.25, 13.25, 0), Vector(41.591886, 14.030629, 0)), False)
sketch10.addGeometry(Part.ArcOfCircle(Part.Circle(Vector(41.75, 13.556287, 0), Vector(0, 0, 1), 0.5), math.radians(0), math.radians(108.434949)), False)
sketch10.addGeometry(Part.LineSegment(Vector(42.25, 13.556287, 0), Vector(42.25, 11.25, 0)), False)
sketch10.addGeometry(Part.LineSegment(Vector(42.25, 11.25, 0), Vector(44.25, 11.25, 0)), False)
sketch10.addConstraint(Sketcher.Constraint("Coincident", 0, 2, 1, 1))
sketch10.addConstraint(Sketcher.Constraint("Coincident", 1, 2, 2, 1))
sketch10.addConstraint(Sketcher.Constraint("Coincident", 2, 2, 3, 1))
sketch10.addConstraint(Sketcher.Constraint("Tangent", 3, 2, 4, 2))
sketch10.addConstraint(Sketcher.Constraint("Tangent", 4, 1, 5, 1))
sketch10.addConstraint(Sketcher.Constraint("Coincident", 5, 2, 6, 1))
sketch10.addConstraint(Sketcher.Constraint("Coincident", 6, 2, 0, 1))
sketch10.addConstraint(Sketcher.Constraint("Vertical", 0))
sketch10.addConstraint(Sketcher.Constraint("Horizontal", 1))
sketch10.addConstraint(Sketcher.Constraint("Vertical", 2))
sketch10.addConstraint(Sketcher.Constraint("Vertical", 5))
sketch10.addConstraint(Sketcher.Constraint("Horizontal", 6))
sketch10.addConstraint(Sketcher.Constraint("Equal", 1, 0))
sketch10.addConstraint(Sketcher.Constraint("Radius", 4, 0.5))
sketch10.addConstraint(Sketcher.Constraint("DistanceX", 1, 2, 1, 1, 5.0))
sketch10.addConstraint(Sketcher.Constraint("DistanceX", 6, 1, 6, 2, 2.0))
sketch10.addConstraint(Sketcher.Constraint("DistanceY", 2, 2, 2, 1, 3.0))
sketch10.addConstraint(Sketcher.Constraint("DistanceX", -1, 1, 4, 3, 41.75))
sketch10.addConstraint(Sketcher.Constraint("DistanceY", -1, 1, 0, 2, 16.25))
sketch10.addConstraint(Sketcher.Constraint("DistanceY", 5, 2, 5, 1, 2.306287))
pocket6 = doc.addObject("PartDesign::Pocket", "Pocket005")
body.addObject(pocket6)
pocket6.Profile = sketch10
pocket6.Type = "ThroughAll"
body2 = doc.addObject("PartDesign::Body", "Body001")

sketch11 = doc.addObject("Sketcher::SketchObject", "Sketch010")
body2.addObject(sketch11)
sketch11.AttachmentSupport = (doc.getObject("XZ_Plane001"), [""])
sketch11.MapMode = "FlatFace"
sketch11.AttachmentOffset = App.Placement(Vector(0, 0, -9.2), App.Rotation())
sketch11.addGeometry(Part.LineSegment(Vector(-1.680887, 10.195731, 0), Vector(-1.680887, 28.369778, 0)), False)
sketch11.addGeometry(Part.LineSegment(Vector(-1.680887, 28.369778, 0), Vector(7, 28.369778, 0)), False)
sketch11.addGeometry(Part.LineSegment(Vector(7, 28.369778, 0), Vector(7, 10.195731, 0)), False)
sketch11.addGeometry(Part.LineSegment(Vector(7, 10.195731, 0), Vector(-1.680887, 10.195731, 0)), False)
sketch11.addConstraint(Sketcher.Constraint("Coincident", 0, 2, 1, 1))
sketch11.addConstraint(Sketcher.Constraint("Coincident", 1, 2, 2, 1))
sketch11.addConstraint(Sketcher.Constraint("Coincident", 2, 2, 3, 1))
sketch11.addConstraint(Sketcher.Constraint("Coincident", 3, 2, 0, 1))
sketch11.addConstraint(Sketcher.Constraint("Vertical", 0))
sketch11.addConstraint(Sketcher.Constraint("Horizontal", 1))
sketch11.addConstraint(Sketcher.Constraint("Vertical", 2))
sketch11.addConstraint(Sketcher.Constraint("Horizontal", 3))
sketch11.addConstraint(Sketcher.Constraint("DistanceX", -1, 1, 1, 2, 7.0))
sketch11.addConstraint(Sketcher.Constraint("DistanceX", 1, 1, 1, 2, 8.680887))
sketch11.addConstraint(Sketcher.Constraint("DistanceY", 0, 1, 0, 2, 18.174047))
sketch11.addConstraint(Sketcher.Constraint("DistanceY", -1, 1, 2, 2, 10.195731))
pad5 = doc.addObject("PartDesign::Pad", "Pad004")
body2.addObject(pad5)
pad5.Profile = sketch11
pad5.Length = 1.2
pad5.Reversed = True

doc.recompute()
